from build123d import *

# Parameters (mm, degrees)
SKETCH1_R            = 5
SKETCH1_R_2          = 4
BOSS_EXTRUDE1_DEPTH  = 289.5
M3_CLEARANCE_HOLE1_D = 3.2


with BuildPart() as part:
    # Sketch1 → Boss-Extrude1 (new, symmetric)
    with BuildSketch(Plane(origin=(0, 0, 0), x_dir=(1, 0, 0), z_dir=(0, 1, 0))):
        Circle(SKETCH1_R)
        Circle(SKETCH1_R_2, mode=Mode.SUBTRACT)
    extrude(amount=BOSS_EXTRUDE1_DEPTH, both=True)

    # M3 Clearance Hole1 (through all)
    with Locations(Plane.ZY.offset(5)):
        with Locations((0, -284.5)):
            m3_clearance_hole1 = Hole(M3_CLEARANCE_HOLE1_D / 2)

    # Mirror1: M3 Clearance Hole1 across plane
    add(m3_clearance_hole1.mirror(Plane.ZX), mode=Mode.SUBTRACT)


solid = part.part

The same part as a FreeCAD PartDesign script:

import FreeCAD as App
import Part
import Sketcher

doc = App.newDocument("Part")
body = doc.addObject("PartDesign::Body", "Body")

sketch1 = doc.addObject("Sketcher::SketchObject", "Sketch")
body.addObject(sketch1)
sketch1.AttachmentSupport = (doc.XZ_Plane, [""])
sketch1.MapMode = "FlatFace"
sketch1.addGeometry([
    Part.Circle(App.Vector(0, 0, 0), App.Vector(0, 0, 1), 5),
    Part.Circle(App.Vector(0, 0, 0), App.Vector(0, 0, 1), 4),
], False)
sketch1.addConstraint([
    Sketcher.Constraint("Coincident", 0, 3, -1, 1),
    Sketcher.Constraint("Coincident", 1, 3, -1, 1),
    Sketcher.Constraint("Diameter", 0, 10.0),
    Sketcher.Constraint("Diameter", 1, 8.0),
])
pad1 = doc.addObject("PartDesign::Pad", "Pad")
body.addObject(pad1)
pad1.Profile = sketch1
pad1.Length = 579
pad1.Midplane = True

sketch2 = doc.addObject("Sketcher::SketchObject", "Sketch001")
body.addObject(sketch2)
sketch2.AttachmentSupport = (doc.YZ_Plane, [""])
sketch2.MapMode = "FlatFace"
sketch2.AttachmentOffset = App.Placement(App.Vector(0, 0, -5), App.Rotation())
sketch2.addGeometry(Part.Circle(App.Vector(-284.5, 0, 0), App.Vector(0, 0, 1), 1.6), False)
sketch2.addConstraint([
    Sketcher.Constraint("PointOnObject", 0, 3, -1),
    Sketcher.Constraint("Diameter", 0, 3.2),
    Sketcher.Constraint("DistanceX", 0, 3, -1, 1, 284.5),
])
doc.recompute()
hole = doc.addObject("PartDesign::Hole", "Hole")
body.addObject(hole)
hole.Profile = sketch2
hole.ThreadType = "None"
hole.Diameter = 3.2
hole.DepthType = "ThroughAll"
hole.Reversed = True
doc.recompute()

mirrored = doc.addObject("PartDesign::Mirrored", "Mirrored")
body.addObject(mirrored)
mirrored.Originals = [hole]
mirrored.MirrorPlane = (doc.XZ_Plane, [""])
body.Tip = mirrored

doc.recompute()
